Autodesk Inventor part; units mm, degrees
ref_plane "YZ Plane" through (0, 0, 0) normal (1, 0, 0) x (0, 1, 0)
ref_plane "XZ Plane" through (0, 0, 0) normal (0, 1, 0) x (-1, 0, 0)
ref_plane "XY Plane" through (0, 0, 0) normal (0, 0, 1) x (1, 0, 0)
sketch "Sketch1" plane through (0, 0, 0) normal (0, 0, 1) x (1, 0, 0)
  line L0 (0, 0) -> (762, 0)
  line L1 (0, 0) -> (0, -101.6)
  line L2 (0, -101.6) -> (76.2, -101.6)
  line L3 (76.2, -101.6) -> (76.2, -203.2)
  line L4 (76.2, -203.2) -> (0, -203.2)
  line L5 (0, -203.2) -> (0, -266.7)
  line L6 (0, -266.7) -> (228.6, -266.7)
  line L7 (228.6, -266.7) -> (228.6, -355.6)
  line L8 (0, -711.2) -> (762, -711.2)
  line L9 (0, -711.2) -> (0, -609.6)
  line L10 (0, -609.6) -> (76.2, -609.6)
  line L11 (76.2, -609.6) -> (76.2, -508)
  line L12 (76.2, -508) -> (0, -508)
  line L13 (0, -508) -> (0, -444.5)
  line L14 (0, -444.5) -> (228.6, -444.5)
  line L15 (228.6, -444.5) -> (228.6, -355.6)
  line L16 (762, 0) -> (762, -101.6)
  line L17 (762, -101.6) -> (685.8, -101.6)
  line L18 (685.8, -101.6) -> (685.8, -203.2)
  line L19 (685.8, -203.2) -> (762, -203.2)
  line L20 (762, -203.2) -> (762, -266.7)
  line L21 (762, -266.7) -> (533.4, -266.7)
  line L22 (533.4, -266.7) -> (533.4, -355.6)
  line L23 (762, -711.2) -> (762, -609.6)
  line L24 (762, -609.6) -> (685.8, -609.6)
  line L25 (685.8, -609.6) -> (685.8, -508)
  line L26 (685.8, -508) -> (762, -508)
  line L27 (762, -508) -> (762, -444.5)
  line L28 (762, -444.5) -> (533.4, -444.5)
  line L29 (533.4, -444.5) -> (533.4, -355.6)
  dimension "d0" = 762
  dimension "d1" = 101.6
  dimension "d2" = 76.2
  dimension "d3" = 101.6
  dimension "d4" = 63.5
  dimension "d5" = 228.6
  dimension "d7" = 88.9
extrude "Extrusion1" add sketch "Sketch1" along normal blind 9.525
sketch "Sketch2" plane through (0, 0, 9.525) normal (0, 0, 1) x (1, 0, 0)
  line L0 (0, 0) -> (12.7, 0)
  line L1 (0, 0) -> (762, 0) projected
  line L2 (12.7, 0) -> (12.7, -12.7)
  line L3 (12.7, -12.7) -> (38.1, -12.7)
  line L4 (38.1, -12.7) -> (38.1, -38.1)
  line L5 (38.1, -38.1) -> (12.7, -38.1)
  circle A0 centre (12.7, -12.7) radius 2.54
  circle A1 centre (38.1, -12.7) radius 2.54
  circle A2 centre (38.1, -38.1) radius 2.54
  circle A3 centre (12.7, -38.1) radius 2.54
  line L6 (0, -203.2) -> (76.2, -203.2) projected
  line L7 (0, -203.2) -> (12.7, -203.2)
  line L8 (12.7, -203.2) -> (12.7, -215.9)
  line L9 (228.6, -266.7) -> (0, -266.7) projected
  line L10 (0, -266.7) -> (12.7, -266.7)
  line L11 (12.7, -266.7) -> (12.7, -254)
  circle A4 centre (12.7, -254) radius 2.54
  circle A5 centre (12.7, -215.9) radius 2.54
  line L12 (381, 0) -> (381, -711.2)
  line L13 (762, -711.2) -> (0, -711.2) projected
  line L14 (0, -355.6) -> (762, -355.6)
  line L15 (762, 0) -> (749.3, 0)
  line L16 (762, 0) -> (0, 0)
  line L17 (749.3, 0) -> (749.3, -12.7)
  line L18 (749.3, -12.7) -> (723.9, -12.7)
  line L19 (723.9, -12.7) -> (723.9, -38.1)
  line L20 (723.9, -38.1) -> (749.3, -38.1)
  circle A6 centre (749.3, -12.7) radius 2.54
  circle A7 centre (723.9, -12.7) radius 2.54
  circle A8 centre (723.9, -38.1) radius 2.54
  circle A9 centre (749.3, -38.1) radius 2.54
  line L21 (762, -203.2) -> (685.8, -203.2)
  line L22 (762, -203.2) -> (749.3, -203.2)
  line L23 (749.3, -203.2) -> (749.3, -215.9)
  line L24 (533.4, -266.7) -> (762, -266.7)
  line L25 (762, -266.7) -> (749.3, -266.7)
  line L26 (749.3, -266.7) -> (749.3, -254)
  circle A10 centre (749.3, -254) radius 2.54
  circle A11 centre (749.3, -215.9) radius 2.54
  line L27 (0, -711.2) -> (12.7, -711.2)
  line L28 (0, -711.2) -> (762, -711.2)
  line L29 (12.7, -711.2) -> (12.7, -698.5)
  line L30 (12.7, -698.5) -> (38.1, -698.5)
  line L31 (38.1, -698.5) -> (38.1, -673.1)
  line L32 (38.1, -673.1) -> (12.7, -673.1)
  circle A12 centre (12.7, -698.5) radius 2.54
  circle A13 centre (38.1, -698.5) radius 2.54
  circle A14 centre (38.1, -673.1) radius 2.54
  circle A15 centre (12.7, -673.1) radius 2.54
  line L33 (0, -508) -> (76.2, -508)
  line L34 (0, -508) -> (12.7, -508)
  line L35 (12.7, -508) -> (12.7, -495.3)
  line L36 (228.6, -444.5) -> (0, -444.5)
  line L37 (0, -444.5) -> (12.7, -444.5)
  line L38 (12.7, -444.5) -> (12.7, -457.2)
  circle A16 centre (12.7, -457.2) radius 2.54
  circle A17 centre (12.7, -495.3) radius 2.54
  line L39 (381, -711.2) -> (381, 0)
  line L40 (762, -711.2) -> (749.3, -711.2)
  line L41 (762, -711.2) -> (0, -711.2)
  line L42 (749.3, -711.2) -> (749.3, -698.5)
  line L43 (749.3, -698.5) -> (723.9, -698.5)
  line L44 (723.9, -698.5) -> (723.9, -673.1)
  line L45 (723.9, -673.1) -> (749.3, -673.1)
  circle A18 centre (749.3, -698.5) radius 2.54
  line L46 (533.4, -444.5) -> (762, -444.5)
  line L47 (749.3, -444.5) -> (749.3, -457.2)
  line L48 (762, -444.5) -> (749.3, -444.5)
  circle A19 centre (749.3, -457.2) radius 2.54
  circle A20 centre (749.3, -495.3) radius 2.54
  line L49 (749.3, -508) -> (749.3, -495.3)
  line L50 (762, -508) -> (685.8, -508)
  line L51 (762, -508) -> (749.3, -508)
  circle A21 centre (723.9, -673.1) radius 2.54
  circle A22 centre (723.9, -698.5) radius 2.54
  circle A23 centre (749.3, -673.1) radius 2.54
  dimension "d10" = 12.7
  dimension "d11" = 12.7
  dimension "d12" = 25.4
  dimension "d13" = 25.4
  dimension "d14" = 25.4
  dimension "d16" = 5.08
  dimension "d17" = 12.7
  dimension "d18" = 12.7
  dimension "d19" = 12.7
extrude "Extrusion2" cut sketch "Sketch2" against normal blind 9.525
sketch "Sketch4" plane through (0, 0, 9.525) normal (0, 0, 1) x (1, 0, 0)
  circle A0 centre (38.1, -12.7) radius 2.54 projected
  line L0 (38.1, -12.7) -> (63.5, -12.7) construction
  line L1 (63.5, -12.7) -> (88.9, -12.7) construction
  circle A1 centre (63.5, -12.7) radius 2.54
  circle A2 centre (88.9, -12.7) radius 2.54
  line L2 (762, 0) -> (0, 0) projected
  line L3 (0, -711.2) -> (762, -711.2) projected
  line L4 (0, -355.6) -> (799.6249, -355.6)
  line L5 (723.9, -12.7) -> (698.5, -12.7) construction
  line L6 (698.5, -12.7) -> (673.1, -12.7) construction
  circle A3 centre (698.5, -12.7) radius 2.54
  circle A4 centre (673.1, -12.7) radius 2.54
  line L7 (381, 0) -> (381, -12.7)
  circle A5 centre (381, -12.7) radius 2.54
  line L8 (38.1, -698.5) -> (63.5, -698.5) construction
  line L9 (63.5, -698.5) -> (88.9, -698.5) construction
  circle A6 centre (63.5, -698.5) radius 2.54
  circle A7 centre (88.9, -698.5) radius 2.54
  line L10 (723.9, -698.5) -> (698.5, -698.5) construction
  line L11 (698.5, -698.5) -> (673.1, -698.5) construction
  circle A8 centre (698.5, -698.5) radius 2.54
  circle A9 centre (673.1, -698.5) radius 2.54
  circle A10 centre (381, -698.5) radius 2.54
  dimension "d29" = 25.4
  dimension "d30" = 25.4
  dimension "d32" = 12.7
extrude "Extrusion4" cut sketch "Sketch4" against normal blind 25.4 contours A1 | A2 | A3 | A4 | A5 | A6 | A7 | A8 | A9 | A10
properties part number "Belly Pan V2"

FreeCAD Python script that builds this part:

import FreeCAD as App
import Part
import Sketcher

V = App.Vector
Q = App.Units.Quantity

doc = App.newDocument("Part")
params = doc.addObject("Spreadsheet::Sheet", "Params")
for row, (alias, value) in enumerate([
    ("sketch1_width", "30 in"),
    ("sketch1_width2", "3 in"),
    ("sketch1_width3", "9 in"),
    ("sketch1_height", "4 in"),
    ("sketch1_height2", "2.5 in"),
    ("pad1_length", "0.375 in"),
    ("sketch2_diameter", "0.2 in"),
    ("pocket1_length", "0.375 in"),
    ("sketch3_diameter", "0.2 in"),
    ("pocket2_length", "1 in"),
], start=1):
    params.set(f"A{row}", alias)
    params.set(f"B{row}", "=" + value)
    params.setAlias(f"B{row}", alias)

body = doc.addObject("PartDesign::Body", "Body")

sketch1 = body.newObject("Sketcher::SketchObject", "Sketch")
sketch1.AttachmentSupport = (doc.getObject("XY_Plane"), [""])
sketch1.MapMode = "FlatFace"
sketch1.addGeometry(Part.LineSegment(V(762, 0, 0), V(0, 0, 0)), False)
sketch1.addGeometry(Part.LineSegment(V(0, 0, 0), V(0, -101.6, 0)), False)
sketch1.addGeometry(Part.LineSegment(V(0, -101.6, 0), V(76.2, -101.6, 0)), False)
sketch1.addGeometry(Part.LineSegment(V(76.2, -101.6, 0), V(76.2, -203.2, 0)), False)
sketch1.addGeometry(Part.LineSegment(V(76.2, -203.2, 0), V(0, -203.2, 0)), False)
sketch1.addGeometry(Part.LineSegment(V(0, -203.2, 0), V(0, -266.7, 0)), False)
sketch1.addGeometry(Part.LineSegment(V(0, -266.7, 0), V(228.6, -266.7, 0)), False)
sketch1.addGeometry(Part.LineSegment(V(228.6, -266.7, 0), V(228.6, -444.5, 0)), False)
sketch1.addGeometry(Part.LineSegment(V(228.6, -444.5, 0), V(0, -444.5, 0)), False)
sketch1.addGeometry(Part.LineSegment(V(0, -444.5, 0), V(0, -508, 0)), False)
sketch1.addGeometry(Part.LineSegment(V(0, -508, 0), V(76.2, -508, 0)), False)
sketch1.addGeometry(Part.LineSegment(V(76.2, -508, 0), V(76.2, -609.6, 0)), False)
sketch1.addGeometry(Part.LineSegment(V(76.2, -609.6, 0), V(0, -609.6, 0)), False)
sketch1.addGeometry(Part.LineSegment(V(0, -609.6, 0), V(0, -711.2, 0)), False)
sketch1.addGeometry(Part.LineSegment(V(0, -711.2, 0), V(762, -711.2, 0)), False)
sketch1.addGeometry(Part.LineSegment(V(762, -711.2, 0), V(762, -609.6, 0)), False)
sketch1.addGeometry(Part.LineSegment(V(762, -609.6, 0), V(685.8, -609.6, 0)), False)
sketch1.addGeometry(Part.LineSegment(V(685.8, -609.6, 0), V(685.8, -508, 0)), False)
sketch1.addGeometry(Part.LineSegment(V(685.8, -508, 0), V(762, -508, 0)), False)
sketch1.addGeometry(Part.LineSegment(V(762, -508, 0), V(762, -444.5, 0)), False)
sketch1.addGeometry(Part.LineSegment(V(762, -444.5, 0), V(533.4, -444.5, 0)), False)
sketch1.addGeometry(Part.LineSegment(V(533.4, -444.5, 0), V(533.4, -266.7, 0)), False)
sketch1.addGeometry(Part.LineSegment(V(533.4, -266.7, 0), V(762, -266.7, 0)), False)
sketch1.addGeometry(Part.LineSegment(V(762, -266.7, 0), V(762, -203.2, 0)), False)
sketch1.addGeometry(Part.LineSegment(V(762, -203.2, 0), V(685.8, -203.2, 0)), False)
sketch1.addGeometry(Part.LineSegment(V(685.8, -203.2, 0), V(685.8, -101.6, 0)), False)
sketch1.addGeometry(Part.LineSegment(V(685.8, -101.6, 0), V(762, -101.6, 0)), False)
sketch1.addGeometry(Part.LineSegment(V(762, -101.6, 0), V(762, 0, 0)), False)
sketch1.addConstraint(Sketcher.Constraint("Coincident", 0, 2, 1, 1))
sketch1.addConstraint(Sketcher.Constraint("Coincident", 1, 2, 2, 1))
sketch1.addConstraint(Sketcher.Constraint("Coincident", 2, 2, 3, 1))
sketch1.addConstraint(Sketcher.Constraint("Coincident", 3, 2, 4, 1))
sketch1.addConstraint(Sketcher.Constraint("Coincident", 4, 2, 5, 1))
sketch1.addConstraint(Sketcher.Constraint("Coincident", 5, 2, 6, 1))
sketch1.addConstraint(Sketcher.Constraint("Coincident", 6, 2, 7, 1))
sketch1.addConstraint(Sketcher.Constraint("Coincident", 7, 2, 8, 1))
sketch1.addConstraint(Sketcher.Constraint("Coincident", 8, 2, 9, 1))
sketch1.addConstraint(Sketcher.Constraint("Coincident", 9, 2, 10, 1))
sketch1.addConstraint(Sketcher.Constraint("Coincident", 10, 2, 11, 1))
sketch1.addConstraint(Sketcher.Constraint("Coincident", 11, 2, 12, 1))
sketch1.addConstraint(Sketcher.Constraint("Coincident", 12, 2, 13, 1))
sketch1.addConstraint(Sketcher.Constraint("Coincident", 13, 2, 14, 1))
sketch1.addConstraint(Sketcher.Constraint("Coincident", 14, 2, 15, 1))
sketch1.addConstraint(Sketcher.Constraint("Coincident", 15, 2, 16, 1))
sketch1.addConstraint(Sketcher.Constraint("Coincident", 16, 2, 17, 1))
sketch1.addConstraint(Sketcher.Constraint("Coincident", 17, 2, 18, 1))
sketch1.addConstraint(Sketcher.Constraint("Coincident", 18, 2, 19, 1))
sketch1.addConstraint(Sketcher.Constraint("Coincident", 19, 2, 20, 1))
sketch1.addConstraint(Sketcher.Constraint("Coincident", 20, 2, 21, 1))
sketch1.addConstraint(Sketcher.Constraint("Coincident", 21, 2, 22, 1))
sketch1.addConstraint(Sketcher.Constraint("Coincident", 22, 2, 23, 1))
sketch1.addConstraint(Sketcher.Constraint("Coincident", 23, 2, 24, 1))
sketch1.addConstraint(Sketcher.Constraint("Coincident", 24, 2, 25, 1))
sketch1.addConstraint(Sketcher.Constraint("Coincident", 25, 2, 26, 1))
sketch1.addConstraint(Sketcher.Constraint("Coincident", 26, 2, 27, 1))
sketch1.addConstraint(Sketcher.Constraint("Coincident", 27, 2, 0, 1))
sketch1.addConstraint(Sketcher.Constraint("Horizontal", 0))
sketch1.addConstraint(Sketcher.Constraint("Vertical", 1))
sketch1.addConstraint(Sketcher.Constraint("Horizontal", 2))
sketch1.addConstraint(Sketcher.Constraint("Vertical", 3))
sketch1.addConstraint(Sketcher.Constraint("Horizontal", 4))
sketch1.addConstraint(Sketcher.Constraint("Vertical", 5))
sketch1.addConstraint(Sketcher.Constraint("Horizontal", 6))
sketch1.addConstraint(Sketcher.Constraint("Vertical", 7))
sketch1.addConstraint(Sketcher.Constraint("Horizontal", 8))
sketch1.addConstraint(Sketcher.Constraint("Vertical", 9))
sketch1.addConstraint(Sketcher.Constraint("Horizontal", 10))
sketch1.addConstraint(Sketcher.Constraint("Vertical", 11))
sketch1.addConstraint(Sketcher.Constraint("Horizontal", 12))
sketch1.addConstraint(Sketcher.Constraint("Vertical", 13))
sketch1.addConstraint(Sketcher.Constraint("Horizontal", 14))
sketch1.addConstraint(Sketcher.Constraint("Vertical", 15))
sketch1.addConstraint(Sketcher.Constraint("Horizontal", 16))
sketch1.addConstraint(Sketcher.Constraint("Vertical", 17))
sketch1.addConstraint(Sketcher.Constraint("Horizontal", 18))
sketch1.addConstraint(Sketcher.Constraint("Vertical", 19))
sketch1.addConstraint(Sketcher.Constraint("Horizontal", 20))
sketch1.addConstraint(Sketcher.Constraint("Vertical", 21))
sketch1.addConstraint(Sketcher.Constraint("Horizontal", 22))
sketch1.addConstraint(Sketcher.Constraint("Vertical", 23))
sketch1.addConstraint(Sketcher.Constraint("Horizontal", 24))
sketch1.addConstraint(Sketcher.Constraint("Vertical", 25))
sketch1.addConstraint(Sketcher.Constraint("Horizontal", 26))
sketch1.addConstraint(Sketcher.Constraint("Vertical", 27))
sketch1.addConstraint(Sketcher.Constraint("Coincident", 0, 2, -1, 1))
sketch1.addConstraint(Sketcher.Constraint("PointOnObject", 4, 2, -2))
sketch1.addConstraint(Sketcher.Constraint("PointOnObject", 8, 2, -2))
sketch1.addConstraint(Sketcher.Constraint("PointOnObject", 12, 2, -2))
sketch1.addConstraint(Sketcher.Constraint("Horizontal", 12, 2, 15, 2))
sketch1.addConstraint(Sketcher.Constraint("Horizontal", 10, 2, 17, 2))
sketch1.addConstraint(Sketcher.Constraint("Horizontal", 8, 2, 19, 2))
sketch1.addConstraint(Sketcher.Constraint("Horizontal", 6, 2, 21, 2))
sketch1.addConstraint(Sketcher.Constraint("Horizontal", 4, 2, 23, 2))
sketch1.addConstraint(Sketcher.Constraint("Horizontal", 2, 2, 25, 2))
sketch1.addConstraint(Sketcher.Constraint("Vertical", 3, 2, 10, 2))
sketch1.addConstraint(Sketcher.Constraint("Vertical", 15, 2, 18, 2))
sketch1.addConstraint(Sketcher.Constraint("Vertical", 19, 2, 22, 2))
sketch1.addConstraint(Sketcher.Constraint("Vertical", 17, 2, 24, 2))
sketch1.addConstraint(Sketcher.Constraint("Vertical", 23, 2, 26, 2))
sketch1.addConstraint(Sketcher.Constraint("Equal", 12, 16))
sketch1.addConstraint(Sketcher.Constraint("Equal", 8, 20))
sketch1.addConstraint(Sketcher.Constraint("Equal", 1, 3))
sketch1.addConstraint(Sketcher.Constraint("Equal", 5, 9))
sketch1.addConstraint(Sketcher.Constraint("Equal", 3, 11))
sketch1.addConstraint(Sketcher.Constraint("Equal", 11, 13))
sketch1.addConstraint(Sketcher.Constraint("DistanceX", 0, 2, 0, 1, Q("30 in")))
sketch1.addConstraint(Sketcher.Constraint("DistanceX", 2, 1, 2, 2, Q("3 in")))
sketch1.addConstraint(Sketcher.Constraint("DistanceX", 6, 1, 6, 2, Q("9 in")))
sketch1.addConstraint(Sketcher.Constraint("DistanceY", 1, 2, 1, 1, Q("4 in")))
sketch1.addConstraint(Sketcher.Constraint("DistanceY", 5, 2, 5, 1, Q("2.5 in")))
sketch1.addConstraint(Sketcher.Constraint("DistanceY", 7, 2, 7, 1, Q("7 in")))
sketch1.setExpression("Constraints[77]", "Params.sketch1_width")
sketch1.setExpression("Constraints[78]", "Params.sketch1_width2")
sketch1.setExpression("Constraints[79]", "Params.sketch1_width3")
sketch1.setExpression("Constraints[80]", "Params.sketch1_height")
sketch1.setExpression("Constraints[81]", "Params.sketch1_height2")
pad1 = body.newObject("PartDesign::Pad", "Pad")
pad1.Profile = sketch1
pad1.setExpression("Length", "Params.pad1_length")

sketch2 = body.newObject("Sketcher::SketchObject", "Sketch001")
sketch2.AttachmentSupport = (doc.getObject("XY_Plane"), [""])
sketch2.MapMode = "FlatFace"
sketch2.AttachmentOffset = App.Placement(V(0, 0, 0.375 * 25.4), App.Rotation())
sketch2.addGeometry(Part.Circle(V(749.3, -38.1, 0), V(0, 0, 1), 2.54), False)
sketch2.addGeometry(Part.Circle(V(723.9, -38.1, 0), V(0, 0, 1), 2.54), False)
sketch2.addGeometry(Part.Circle(V(723.9, -12.7, 0), V(0, 0, 1), 2.54), False)
sketch2.addGeometry(Part.Circle(V(749.3, -12.7, 0), V(0, 0, 1), 2.54), False)
sketch2.addGeometry(Part.Circle(V(749.3, -673.1, 0), V(0, 0, 1), 2.54), False)
sketch2.addGeometry(Part.Circle(V(723.9, -673.1, 0), V(0, 0, 1), 2.54), False)
sketch2.addGeometry(Part.Circle(V(723.9, -698.5, 0), V(0, 0, 1), 2.54), False)
sketch2.addGeometry(Part.Circle(V(749.3, -698.5, 0), V(0, 0, 1), 2.54), False)
sketch2.addGeometry(Part.Circle(V(12.7, -673.1, 0), V(0, 0, 1), 2.54), False)
sketch2.addGeometry(Part.Circle(V(38.1, -673.1, 0), V(0, 0, 1), 2.54), False)
sketch2.addGeometry(Part.Circle(V(38.1, -698.5, 0), V(0, 0, 1), 2.54), False)
sketch2.addGeometry(Part.Circle(V(12.7, -698.5, 0), V(0, 0, 1), 2.54), False)
sketch2.addGeometry(Part.Circle(V(12.7, -38.1, 0), V(0, 0, 1), 2.54), False)
sketch2.addGeometry(Part.Circle(V(38.1, -38.1, 0), V(0, 0, 1), 2.54), False)
sketch2.addGeometry(Part.Circle(V(38.1, -12.7, 0), V(0, 0, 1), 2.54), False)
sketch2.addGeometry(Part.Circle(V(12.7, -12.7, 0), V(0, 0, 1), 2.54), False)
sketch2.addGeometry(Part.Circle(V(12.7, -254, 0), V(0, 0, 1), 2.54), False)
sketch2.addGeometry(Part.Circle(V(12.7, -215.9, 0), V(0, 0, 1), 2.54), False)
sketch2.addGeometry(Part.Circle(V(749.3, -254, 0), V(0, 0, 1), 2.54), False)
sketch2.addGeometry(Part.Circle(V(749.3, -215.9, 0), V(0, 0, 1), 2.54), False)
sketch2.addGeometry(Part.Circle(V(12.7, -457.2, 0), V(0, 0, 1), 2.54), False)
sketch2.addGeometry(Part.Circle(V(12.7, -495.3, 0), V(0, 0, 1), 2.54), False)
sketch2.addGeometry(Part.Circle(V(749.3, -457.2, 0), V(0, 0, 1), 2.54), False)
sketch2.addGeometry(Part.Circle(V(749.3, -495.3, 0), V(0, 0, 1), 2.54), False)
sketch2.addConstraint(Sketcher.Constraint("Equal", 0, 1))
sketch2.addConstraint(Sketcher.Constraint("Equal", 1, 2))
sketch2.addConstraint(Sketcher.Constraint("Equal", 2, 3))
sketch2.addConstraint(Sketcher.Constraint("Equal", 3, 4))
sketch2.addConstraint(Sketcher.Constraint("Equal", 4, 5))
sketch2.addConstraint(Sketcher.Constraint("Equal", 5, 6))
sketch2.addConstraint(Sketcher.Constraint("Equal", 6, 7))
sketch2.addConstraint(Sketcher.Constraint("Equal", 7, 8))
sketch2.addConstraint(Sketcher.Constraint("Equal", 8, 9))
sketch2.addConstraint(Sketcher.Constraint("Equal", 9, 10))
sketch2.addConstraint(Sketcher.Constraint("Equal", 10, 11))
sketch2.addConstraint(Sketcher.Constraint("Equal", 11, 12))
sketch2.addConstraint(Sketcher.Constraint("Equal", 12, 13))
sketch2.addConstraint(Sketcher.Constraint("Equal", 13, 14))
sketch2.addConstraint(Sketcher.Constraint("Equal", 14, 15))
sketch2.addConstraint(Sketcher.Constraint("Equal", 15, 16))
sketch2.addConstraint(Sketcher.Constraint("Equal", 16, 17))
sketch2.addConstraint(Sketcher.Constraint("Equal", 17, 18))
sketch2.addConstraint(Sketcher.Constraint("Equal", 18, 19))
sketch2.addConstraint(Sketcher.Constraint("Equal", 19, 20))
sketch2.addConstraint(Sketcher.Constraint("Equal", 20, 21))
sketch2.addConstraint(Sketcher.Constraint("Equal", 21, 22))
sketch2.addConstraint(Sketcher.Constraint("Equal", 22, 23))
sketch2.addConstraint(Sketcher.Constraint("Horizontal", 0, 3, 1, 3))
sketch2.addConstraint(Sketcher.Constraint("Horizontal", 2, 3, 3, 3))
sketch2.addConstraint(Sketcher.Constraint("Horizontal", 4, 3, 5, 3))
sketch2.addConstraint(Sketcher.Constraint("Horizontal", 6, 3, 7, 3))
sketch2.addConstraint(Sketcher.Constraint("Horizontal", 5, 3, 8, 3))
sketch2.addConstraint(Sketcher.Constraint("Horizontal", 8, 3, 9, 3))
sketch2.addConstraint(Sketcher.Constraint("Horizontal", 7, 3, 10, 3))
sketch2.addConstraint(Sketcher.Constraint("Horizontal", 10, 3, 11, 3))
sketch2.addConstraint(Sketcher.Constraint("Horizontal", 1, 3, 12, 3))
sketch2.addConstraint(Sketcher.Constraint("Horizontal", 12, 3, 13, 3))
sketch2.addConstraint(Sketcher.Constraint("Horizontal", 3, 3, 14, 3))
sketch2.addConstraint(Sketcher.Constraint("Horizontal", 14, 3, 15, 3))
sketch2.addConstraint(Sketcher.Constraint("Horizontal", 16, 3, 18, 3))
sketch2.addConstraint(Sketcher.Constraint("Horizontal", 17, 3, 19, 3))
sketch2.addConstraint(Sketcher.Constraint("Horizontal", 20, 3, 22, 3))
sketch2.addConstraint(Sketcher.Constraint("Horizontal", 21, 3, 23, 3))
sketch2.addConstraint(Sketcher.Constraint("Vertical", 1, 3, 2, 3))
sketch2.addConstraint(Sketcher.Constraint("Vertical", 0, 3, 3, 3))
sketch2.addConstraint(Sketcher.Constraint("Vertical", 3, 3, 4, 3))
sketch2.addConstraint(Sketcher.Constraint("Vertical", 2, 3, 5, 3))
sketch2.addConstraint(Sketcher.Constraint("Vertical", 5, 3, 6, 3))
sketch2.addConstraint(Sketcher.Constraint("Vertical", 4, 3, 7, 3))
sketch2.addConstraint(Sketcher.Constraint("Vertical", 9, 3, 10, 3))
sketch2.addConstraint(Sketcher.Constraint("Vertical", 8, 3, 11, 3))
sketch2.addConstraint(Sketcher.Constraint("Vertical", 11, 3, 12, 3))
sketch2.addConstraint(Sketcher.Constraint("Vertical", 10, 3, 13, 3))
sketch2.addConstraint(Sketcher.Constraint("Vertical", 13, 3, 14, 3))
sketch2.addConstraint(Sketcher.Constraint("Vertical", 12, 3, 15, 3))
sketch2.addConstraint(Sketcher.Constraint("Vertical", 15, 3, 16, 3))
sketch2.addConstraint(Sketcher.Constraint("Vertical", 16, 3, 17, 3))
sketch2.addConstraint(Sketcher.Constraint("Vertical", 7, 3, 18, 3))
sketch2.addConstraint(Sketcher.Constraint("Vertical", 18, 3, 19, 3))
sketch2.addConstraint(Sketcher.Constraint("Vertical", 17, 3, 20, 3))
sketch2.addConstraint(Sketcher.Constraint("Vertical", 20, 3, 21, 3))
sketch2.addConstraint(Sketcher.Constraint("Vertical", 19, 3, 22, 3))
sketch2.addConstraint(Sketcher.Constraint("Vertical", 22, 3, 23, 3))
sketch2.addConstraint(Sketcher.Constraint("Diameter", 0, Q("0.2 in")))
sketch2.addConstraint(Sketcher.Constraint("DistanceX", 1, 3, 0, 3, Q("1 in")))
sketch2.addConstraint(Sketcher.Constraint("DistanceY", 1, 3, 2, 3, Q("1 in")))
sketch2.addConstraint(Sketcher.Constraint("DistanceY", 6, 3, 5, 3, Q("1 in")))
sketch2.addConstraint(Sketcher.Constraint("DistanceX", 8, 3, 9, 3, Q("1 in")))
sketch2.addConstraint(Sketcher.Constraint("DistanceY", 2, 3, -1, 1, Q("0.5 in")))
sketch2.addConstraint(Sketcher.Constraint("DistanceX", -1, 1, 8, 3, Q("0.5 in")))
sketch2.addConstraint(Sketcher.Constraint("DistanceY", 16, 3, -1, 1, Q("10 in")))
sketch2.addConstraint(Sketcher.Constraint("DistanceY", 20, 3, -1, 1, Q("18 in")))
sketch2.addConstraint(Sketcher.Constraint("DistanceY", 4, 3, 0, 3, Q("25 in")))
sketch2.addConstraint(Sketcher.Constraint("DistanceX", 8, 3, 5, 3, Q("28 in")))
sketch2.addConstraint(Sketcher.Constraint("DistanceY", 17, 3, 12, 3, Q("7 in")))
sketch2.addConstraint(Sketcher.Constraint("DistanceY", 8, 3, 21, 3, Q("7 in")))
sketch2.setExpression("Constraints[59]", "Params.sketch2_diameter")
pocket1 = body.newObject("PartDesign::Pocket", "Pocket")
pocket1.Profile = sketch2
pocket1.setExpression("Length", "Params.pocket1_length")

sketch3 = body.newObject("Sketcher::SketchObject", "Sketch002")
sketch3.AttachmentSupport = (doc.getObject("XY_Plane"), [""])
sketch3.MapMode = "FlatFace"
sketch3.AttachmentOffset = App.Placement(V(0, 0, 0.375 * 25.4), App.Rotation())
sketch3.addGeometry(Part.Circle(V(63.5, -12.7, 0), V(0, 0, 1), 2.54), False)
sketch3.addGeometry(Part.Circle(V(88.9, -12.7, 0), V(0, 0, 1), 2.54), False)
sketch3.addGeometry(Part.Circle(V(698.5, -12.7, 0), V(0, 0, 1), 2.54), False)
sketch3.addGeometry(Part.Circle(V(673.1, -12.7, 0), V(0, 0, 1), 2.54), False)
sketch3.addGeometry(Part.Circle(V(381, -12.7, 0), V(0, 0, 1), 2.54), False)
sketch3.addGeometry(Part.Circle(V(63.5, -698.5, 0), V(0, 0, 1), 2.54), False)
sketch3.addGeometry(Part.Circle(V(88.9, -698.5, 0), V(0, 0, 1), 2.54), False)
sketch3.addGeometry(Part.Circle(V(698.5, -698.5, 0), V(0, 0, 1), 2.54), False)
sketch3.addGeometry(Part.Circle(V(673.1, -698.5, 0), V(0, 0, 1), 2.54), False)
sketch3.addGeometry(Part.Circle(V(381, -698.5, 0), V(0, 0, 1), 2.54), False)
sketch3.addConstraint(Sketcher.Constraint("Equal", 0, 1))
sketch3.addConstraint(Sketcher.Constraint("Equal", 1, 2))
sketch3.addConstraint(Sketcher.Constraint("Equal", 2, 3))
sketch3.addConstraint(Sketcher.Constraint("Equal", 3, 4))
sketch3.addConstraint(Sketcher.Constraint("Equal", 4, 5))
sketch3.addConstraint(Sketcher.Constraint("Equal", 5, 6))
sketch3.addConstraint(Sketcher.Constraint("Equal", 6, 7))
sketch3.addConstraint(Sketcher.Constraint("Equal", 7, 8))
sketch3.addConstraint(Sketcher.Constraint("Equal", 8, 9))
sketch3.addConstraint(Sketcher.Constraint("Horizontal", 0, 3, 1, 3))
sketch3.addConstraint(Sketcher.Constraint("Horizontal", 1, 3, 2, 3))
sketch3.addConstraint(Sketcher.Constraint("Horizontal", 2, 3, 3, 3))
sketch3.addConstraint(Sketcher.Constraint("Horizontal", 3, 3, 4, 3))
sketch3.addConstraint(Sketcher.Constraint("Horizontal", 5, 3, 6, 3))
sketch3.addConstraint(Sketcher.Constraint("Horizontal", 6, 3, 7, 3))
sketch3.addConstraint(Sketcher.Constraint("Horizontal", 7, 3, 8, 3))
sketch3.addConstraint(Sketcher.Constraint("Horizontal", 8, 3, 9, 3))
sketch3.addConstraint(Sketcher.Constraint("Vertical", 0, 3, 5, 3))
sketch3.addConstraint(Sketcher.Constraint("Vertical", 1, 3, 6, 3))
sketch3.addConstraint(Sketcher.Constraint("Vertical", 2, 3, 7, 3))
sketch3.addConstraint(Sketcher.Constraint("Vertical", 3, 3, 8, 3))
sketch3.addConstraint(Sketcher.Constraint("Vertical", 4, 3, 9, 3))
sketch3.addConstraint(Sketcher.Constraint("DistanceX", 0, 3, 1, 3, Q("1 in")))
sketch3.addConstraint(Sketcher.Constraint("DistanceX", 3, 3, 2, 3, Q("1 in")))
sketch3.addConstraint(Sketcher.Constraint("Diameter", 0, Q("0.2 in")))
sketch3.addConstraint(Sketcher.Constraint("DistanceY", 0, 3, -1, 1, Q("0.5 in")))
sketch3.addConstraint(Sketcher.Constraint("DistanceX", -1, 1, 4, 3, Q("15 in")))
sketch3.addConstraint(Sketcher.Constraint("DistanceX", 1, 3, 2, 3, Q("24 in")))
sketch3.addConstraint(Sketcher.Constraint("DistanceY", 5, 3, 0, 3, Q("27 in")))
sketch3.addConstraint(Sketcher.Constraint("DistanceX", -1, 1, 0, 3, Q("2.5 in")))
sketch3.setExpression("Constraints[24]", "Params.sketch3_diameter")
pocket2 = body.newObject("PartDesign::Pocket", "Pocket001")
pocket2.Profile = sketch3
pocket2.setExpression("Length", "Params.pocket2_length")

doc.recompute()
